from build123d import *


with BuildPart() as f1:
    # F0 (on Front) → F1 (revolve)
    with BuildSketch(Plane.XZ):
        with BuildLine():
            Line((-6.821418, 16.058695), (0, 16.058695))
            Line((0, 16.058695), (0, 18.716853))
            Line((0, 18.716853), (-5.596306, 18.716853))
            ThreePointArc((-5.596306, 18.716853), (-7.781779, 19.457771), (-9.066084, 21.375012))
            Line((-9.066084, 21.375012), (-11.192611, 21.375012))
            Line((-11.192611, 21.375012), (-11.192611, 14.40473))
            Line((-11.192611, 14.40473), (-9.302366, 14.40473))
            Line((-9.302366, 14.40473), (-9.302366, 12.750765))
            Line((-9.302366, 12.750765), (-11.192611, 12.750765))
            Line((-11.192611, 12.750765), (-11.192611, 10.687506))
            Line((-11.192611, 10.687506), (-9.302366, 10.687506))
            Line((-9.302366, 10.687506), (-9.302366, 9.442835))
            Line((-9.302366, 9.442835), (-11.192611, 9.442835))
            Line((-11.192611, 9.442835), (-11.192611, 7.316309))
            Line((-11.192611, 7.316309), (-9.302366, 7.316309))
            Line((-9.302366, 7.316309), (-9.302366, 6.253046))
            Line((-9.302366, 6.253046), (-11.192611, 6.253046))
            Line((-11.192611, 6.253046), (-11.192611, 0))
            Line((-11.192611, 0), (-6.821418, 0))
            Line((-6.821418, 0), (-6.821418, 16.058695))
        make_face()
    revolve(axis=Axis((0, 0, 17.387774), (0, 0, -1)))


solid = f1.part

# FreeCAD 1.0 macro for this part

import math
import FreeCAD as App
import Part
import Sketcher
from FreeCAD import Vector

doc = App.newDocument("Part")
body = doc.addObject("PartDesign::Body", "Body")

# Sketch on XZ plane
sketch1 = doc.addObject("Sketcher::SketchObject", "Sketch")
body.addObject(sketch1)
sketch1.AttachmentSupport = (doc.XZ_Plane, [""])
sketch1.MapMode = "FlatFace"
sketch1.addGeometry([
    Part.LineSegment(Vector(-6.821418, 16.058695, 0), Vector(0, 16.058695, 0)),  # 0
    Part.LineSegment(Vector(0, 16.058695, 0), Vector(0, 18.716853, 0)),  # 1
    Part.LineSegment(Vector(0, 18.716853, 0), Vector(-5.596306, 18.716853, 0)),  # 2
    Part.ArcOfCircle(Part.Circle(Vector(-5.596306, 22.310537, 0), Vector(0, 0, 1), 3.593684), math.radians(-164.910668), math.radians(-89.999994)),  # 3
    Part.LineSegment(Vector(-9.066084, 21.375012, 0), Vector(-11.192611, 21.375012, 0)),  # 4
    Part.LineSegment(Vector(-11.192611, 21.375012, 0), Vector(-11.192611, 14.40473, 0)),  # 5
    Part.LineSegment(Vector(-11.192611, 14.40473, 0), Vector(-9.302366, 14.40473, 0)),  # 6
    Part.LineSegment(Vector(-9.302366, 14.40473, 0), Vector(-9.302366, 12.750765, 0)),  # 7
    Part.LineSegment(Vector(-9.302366, 12.750765, 0), Vector(-11.192611, 12.750765, 0)),  # 8
    Part.LineSegment(Vector(-11.192611, 12.750765, 0), Vector(-11.192611, 10.687506, 0)),  # 9
    Part.LineSegment(Vector(-11.192611, 10.687506, 0), Vector(-9.302366, 10.687506, 0)),  # 10
    Part.LineSegment(Vector(-9.302366, 10.687506, 0), Vector(-9.302366, 9.442835, 0)),  # 11
    Part.LineSegment(Vector(-9.302366, 9.442835, 0), Vector(-11.192611, 9.442835, 0)),  # 12
    Part.LineSegment(Vector(-11.192611, 9.442835, 0), Vector(-11.192611, 7.316309, 0)),  # 13
    Part.LineSegment(Vector(-11.192611, 7.316309, 0), Vector(-9.302366, 7.316309, 0)),  # 14
    Part.LineSegment(Vector(-9.302366, 7.316309, 0), Vector(-9.302366, 6.253046, 0)),  # 15
    Part.LineSegment(Vector(-9.302366, 6.253046, 0), Vector(-11.192611, 6.253046, 0)),  # 16
    Part.LineSegment(Vector(-11.192611, 6.253046, 0), Vector(-11.192611, 0, 0)),  # 17
    Part.LineSegment(Vector(-11.192611, 0, 0), Vector(-6.821418, 0, 0)),  # 18
    Part.LineSegment(Vector(-6.821418, 0, 0), Vector(-6.821418, 16.058695, 0)),  # 19
], False)
sketch1.addConstraint([
    Sketcher.Constraint("Coincident", 0, 2, 1, 1),
    Sketcher.Constraint("Coincident", 1, 2, 2, 1),
    Sketcher.Constraint("Tangent", 2, 2, 3, 2),
    Sketcher.Constraint("Coincident", 3, 1, 4, 1),
    Sketcher.Constraint("Coincident", 4, 2, 5, 1),
    Sketcher.Constraint("Coincident", 5, 2, 6, 1),
    Sketcher.Constraint("Coincident", 6, 2, 7, 1),
    Sketcher.Constraint("Coincident", 7, 2, 8, 1),
    Sketcher.Constraint("Coincident", 8, 2, 9, 1),
    Sketcher.Constraint("Coincident", 9, 2, 10, 1),
    Sketcher.Constraint("Coincident", 10, 2, 11, 1),
    Sketcher.Constraint("Coincident", 11, 2, 12, 1),
    Sketcher.Constraint("Coincident", 12, 2, 13, 1),
    Sketcher.Constraint("Coincident", 13, 2, 14, 1),
    Sketcher.Constraint("Coincident", 14, 2, 15, 1),
    Sketcher.Constraint("Coincident", 15, 2, 16, 1),
    Sketcher.Constraint("Coincident", 16, 2, 17, 1),
    Sketcher.Constraint("Coincident", 17, 2, 18, 1),
    Sketcher.Constraint("Coincident", 18, 2, 19, 1),
    Sketcher.Constraint("Coincident", 19, 2, 0, 1),
    Sketcher.Constraint("Horizontal", 0),
    Sketcher.Constraint("Vertical", 1),
    Sketcher.Constraint("Horizontal", 2),
    Sketcher.Constraint("Horizontal", 4),
    Sketcher.Constraint("Vertical", 5),
    Sketcher.Constraint("Horizontal", 6),
    Sketcher.Constraint("Vertical", 7),
    Sketcher.Constraint("Horizontal", 8),
    Sketcher.Constraint("Vertical", 9),
    Sketcher.Constraint("Horizontal", 10),
    Sketcher.Constraint("Vertical", 11),
    Sketcher.Constraint("Horizontal", 12),
    Sketcher.Constraint("Vertical", 13),
    Sketcher.Constraint("Horizontal", 14),
    Sketcher.Constraint("Vertical", 15),
    Sketcher.Constraint("Horizontal", 16),
    Sketcher.Constraint("Vertical", 17),
    Sketcher.Constraint("Horizontal", 18),
    Sketcher.Constraint("Vertical", 19),
    Sketcher.Constraint("PointOnObject", 0, 2, -2),
    Sketcher.Constraint("PointOnObject", 17, 2, -1),
    Sketcher.Constraint("Vertical", 5, 2, 8, 2),
    Sketcher.Constraint("Vertical", 7, 2, 10, 2),
    Sketcher.Constraint("Vertical", 9, 2, 12, 2),
    Sketcher.Constraint("Vertical", 11, 2, 14, 2),
    Sketcher.Constraint("Vertical", 13, 2, 16, 2),
    Sketcher.Constraint("Equal", 4, 13),
    Sketcher.Constraint("Radius", 3, 3.593684),
    Sketcher.Constraint("DistanceX", 0, 1, 0, 2, 6.821418),
    Sketcher.Constraint("DistanceY", 1, 1, 1, 2, 2.658158),
    Sketcher.Constraint("DistanceY", 9, 2, 9, 1, 2.063259),
    Sketcher.Constraint("DistanceY", 11, 2, 11, 1, 1.244671),
    Sketcher.Constraint("DistanceX", 2, 2, 2, 1, 5.596306),
    Sketcher.Constraint("DistanceX", 4, 2, 4, 1, 2.126527),
    Sketcher.Constraint("DistanceX", 6, 1, 6, 2, 1.890245),
    Sketcher.Constraint("DistanceX", 18, 1, 18, 2, 4.371193),
    Sketcher.Constraint("DistanceY", 5, 2, 5, 1, 6.970282),
    Sketcher.Constraint("DistanceY", 7, 2, 7, 1, 1.653965),
    Sketcher.Constraint("DistanceY", 15, 2, 15, 1, 1.063263),
    Sketcher.Constraint("DistanceY", 17, 2, 17, 1, 6.253046),
])
revolution = doc.addObject("PartDesign::Revolution", "Revolution")
body.addObject(revolution)
revolution.Profile = sketch1
revolution.ReferenceAxis = (sketch1, ["V_Axis"])
revolution.Angle = 360

doc.recompute()
